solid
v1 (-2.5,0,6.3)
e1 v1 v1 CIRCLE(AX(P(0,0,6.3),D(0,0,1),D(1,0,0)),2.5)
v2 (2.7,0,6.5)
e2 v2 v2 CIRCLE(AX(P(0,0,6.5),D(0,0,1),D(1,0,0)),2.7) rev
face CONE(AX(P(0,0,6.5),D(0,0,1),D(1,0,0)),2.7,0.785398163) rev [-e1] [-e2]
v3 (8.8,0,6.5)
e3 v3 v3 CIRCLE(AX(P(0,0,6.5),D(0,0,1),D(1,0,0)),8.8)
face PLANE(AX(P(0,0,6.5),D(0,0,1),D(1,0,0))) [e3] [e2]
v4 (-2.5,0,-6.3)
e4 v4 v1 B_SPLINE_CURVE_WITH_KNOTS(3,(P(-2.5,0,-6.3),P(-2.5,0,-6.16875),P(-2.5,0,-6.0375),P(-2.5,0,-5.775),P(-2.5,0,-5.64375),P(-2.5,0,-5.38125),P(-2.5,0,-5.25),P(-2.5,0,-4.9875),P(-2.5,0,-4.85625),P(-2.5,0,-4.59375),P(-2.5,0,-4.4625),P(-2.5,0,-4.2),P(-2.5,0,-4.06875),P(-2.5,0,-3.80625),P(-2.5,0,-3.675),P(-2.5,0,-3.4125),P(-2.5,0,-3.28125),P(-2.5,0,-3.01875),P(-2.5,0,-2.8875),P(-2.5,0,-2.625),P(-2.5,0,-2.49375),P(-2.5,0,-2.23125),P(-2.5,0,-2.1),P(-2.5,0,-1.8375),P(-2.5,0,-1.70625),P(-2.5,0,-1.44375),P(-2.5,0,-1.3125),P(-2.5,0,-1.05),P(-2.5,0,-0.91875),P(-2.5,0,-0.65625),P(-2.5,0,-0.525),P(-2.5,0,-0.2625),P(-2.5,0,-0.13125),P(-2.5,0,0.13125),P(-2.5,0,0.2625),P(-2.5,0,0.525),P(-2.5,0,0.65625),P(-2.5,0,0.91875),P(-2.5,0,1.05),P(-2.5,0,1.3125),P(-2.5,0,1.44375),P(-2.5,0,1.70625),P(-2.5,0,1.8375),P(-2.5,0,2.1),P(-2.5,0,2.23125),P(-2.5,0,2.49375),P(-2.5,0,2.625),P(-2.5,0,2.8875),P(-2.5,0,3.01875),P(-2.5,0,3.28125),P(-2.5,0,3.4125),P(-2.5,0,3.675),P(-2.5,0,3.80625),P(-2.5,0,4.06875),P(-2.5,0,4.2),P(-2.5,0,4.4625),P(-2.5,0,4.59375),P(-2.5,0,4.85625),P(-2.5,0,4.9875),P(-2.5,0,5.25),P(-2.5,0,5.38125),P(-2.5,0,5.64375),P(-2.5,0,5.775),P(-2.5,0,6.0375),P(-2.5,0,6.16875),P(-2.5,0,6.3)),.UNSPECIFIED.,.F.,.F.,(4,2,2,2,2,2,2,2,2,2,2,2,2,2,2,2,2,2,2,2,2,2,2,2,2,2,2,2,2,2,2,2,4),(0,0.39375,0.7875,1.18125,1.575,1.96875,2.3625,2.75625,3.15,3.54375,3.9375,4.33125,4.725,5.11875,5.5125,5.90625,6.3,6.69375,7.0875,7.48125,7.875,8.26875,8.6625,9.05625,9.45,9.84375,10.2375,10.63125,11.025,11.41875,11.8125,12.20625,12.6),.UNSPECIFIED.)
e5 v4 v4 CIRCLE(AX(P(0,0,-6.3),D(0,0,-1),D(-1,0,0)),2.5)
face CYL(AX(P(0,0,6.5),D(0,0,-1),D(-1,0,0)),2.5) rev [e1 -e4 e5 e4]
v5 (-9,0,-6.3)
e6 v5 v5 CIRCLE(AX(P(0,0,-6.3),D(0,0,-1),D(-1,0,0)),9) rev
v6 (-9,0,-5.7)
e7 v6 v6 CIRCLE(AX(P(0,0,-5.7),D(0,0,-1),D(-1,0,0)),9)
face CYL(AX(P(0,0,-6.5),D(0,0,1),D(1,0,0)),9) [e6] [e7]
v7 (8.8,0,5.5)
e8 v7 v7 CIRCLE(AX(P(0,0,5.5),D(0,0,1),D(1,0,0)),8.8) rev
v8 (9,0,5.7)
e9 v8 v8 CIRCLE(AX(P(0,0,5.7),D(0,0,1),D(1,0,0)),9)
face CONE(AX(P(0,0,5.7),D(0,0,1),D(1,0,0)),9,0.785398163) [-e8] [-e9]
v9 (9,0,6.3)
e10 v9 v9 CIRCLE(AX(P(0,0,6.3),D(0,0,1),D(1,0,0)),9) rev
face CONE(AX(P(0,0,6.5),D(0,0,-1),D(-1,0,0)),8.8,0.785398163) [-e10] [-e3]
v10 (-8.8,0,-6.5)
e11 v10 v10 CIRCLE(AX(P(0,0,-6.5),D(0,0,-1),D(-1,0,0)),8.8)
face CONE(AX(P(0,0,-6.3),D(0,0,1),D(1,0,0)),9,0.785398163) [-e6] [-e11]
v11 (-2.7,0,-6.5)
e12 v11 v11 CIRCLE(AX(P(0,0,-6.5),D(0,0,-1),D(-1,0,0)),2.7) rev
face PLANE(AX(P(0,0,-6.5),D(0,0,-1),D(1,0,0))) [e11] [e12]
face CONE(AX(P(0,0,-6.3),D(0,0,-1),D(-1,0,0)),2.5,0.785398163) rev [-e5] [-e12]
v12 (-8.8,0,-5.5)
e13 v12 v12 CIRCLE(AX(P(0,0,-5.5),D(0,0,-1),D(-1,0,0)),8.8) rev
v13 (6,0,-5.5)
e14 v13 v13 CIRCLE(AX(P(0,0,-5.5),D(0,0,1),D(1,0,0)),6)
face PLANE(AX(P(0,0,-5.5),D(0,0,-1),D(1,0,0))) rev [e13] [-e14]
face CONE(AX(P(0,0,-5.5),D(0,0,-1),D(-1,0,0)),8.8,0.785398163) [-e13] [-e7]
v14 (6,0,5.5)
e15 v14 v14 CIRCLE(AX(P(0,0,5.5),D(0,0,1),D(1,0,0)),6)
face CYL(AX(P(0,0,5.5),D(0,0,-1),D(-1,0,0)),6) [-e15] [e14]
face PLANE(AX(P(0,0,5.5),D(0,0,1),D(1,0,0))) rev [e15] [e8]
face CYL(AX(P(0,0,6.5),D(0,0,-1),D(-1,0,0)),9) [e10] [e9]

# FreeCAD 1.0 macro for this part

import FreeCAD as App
import Part
import Sketcher


def edges_at(feature, points):
    """Names of the edges that pass closest to the given points."""
    edges = feature.Shape.Edges
    near = lambda p: min(range(len(edges)), key=lambda i: edges[i].distToShape(Part.Vertex(*p))[0])
    return sorted({f"Edge{near(p) + 1}" for p in points})

doc = App.newDocument("Part")
body = doc.addObject("PartDesign::Body", "Body")

# Sketch on XY plane
sketch1 = body.newObject("Sketcher::SketchObject", "Sketch")
sketch1.AttachmentSupport = (doc.getObject("XY_Plane"), [""])
sketch1.MapMode = "FlatFace"
sketch1.addGeometry(Part.Circle(App.Vector(0, 0, 0), App.Vector(0, 0, 1), 6), False)
sketch1.addConstraint([
    Sketcher.Constraint("Coincident", 0, 3, -1, 1),
    Sketcher.Constraint("Diameter", 0, 12.0),
])
pad1 = body.newObject("PartDesign::Pad", "Pad")
pad1.Profile = sketch1
pad1.Length = 11
pad1.Midplane = True

# Sketch on XY plane
sketch2 = body.newObject("Sketcher::SketchObject", "Sketch001")
sketch2.AttachmentSupport = (doc.getObject("XY_Plane"), [""])
sketch2.MapMode = "FlatFace"
sketch2.AttachmentOffset = App.Placement(App.Vector(0, 0, 5.5), App.Rotation())
sketch2.addGeometry(Part.Circle(App.Vector(0, 0, 0), App.Vector(0, 0, 1), 9), False)
sketch2.addConstraint([
    Sketcher.Constraint("Coincident", 0, 3, -1, 1),
    Sketcher.Constraint("Diameter", 0, 18.0),
])
pad2 = body.newObject("PartDesign::Pad", "Pad001")
pad2.Profile = sketch2
pad2.Length = 1
doc.recompute()

mirrored = body.newObject("PartDesign::Mirrored", "Mirrored")
mirrored.Originals = [pad2]
mirrored.MirrorPlane = (doc.getObject("XY_Plane"), [""])
body.Tip = mirrored

# Sketch on XY plane
sketch3 = body.newObject("Sketcher::SketchObject", "Sketch002")
sketch3.AttachmentSupport = (doc.getObject("XY_Plane"), [""])
sketch3.MapMode = "FlatFace"
sketch3.AttachmentOffset = App.Placement(App.Vector(0, 0, -6.5), App.Rotation())
sketch3.addGeometry(Part.Circle(App.Vector(0, 0, 0), App.Vector(0, 0, 1), 2.5), False)
sketch3.addConstraint([
    Sketcher.Constraint("Coincident", 0, 3, -1, 1),
    Sketcher.Constraint("Diameter", 0, 5.0),
])
pocket1 = body.newObject("PartDesign::Pocket", "Pocket")
pocket1.Profile = sketch3
pocket1.Type = "ThroughAll"
pocket1.Reversed = True
doc.recompute()

chamfer = body.newObject("PartDesign::Chamfer", "Chamfer")
chamfer.Base = (pocket1, edges_at(pocket1, [
    (-9, 0, -5.5),
    (2.5, 0, 6.5),
    (2.5, 0, -6.5),
    (-9, 0, 5.5),
    (-9, 0, 6.5),
    (-9, 0, -6.5),
]))
chamfer.Size = 0.2

doc.recompute()
